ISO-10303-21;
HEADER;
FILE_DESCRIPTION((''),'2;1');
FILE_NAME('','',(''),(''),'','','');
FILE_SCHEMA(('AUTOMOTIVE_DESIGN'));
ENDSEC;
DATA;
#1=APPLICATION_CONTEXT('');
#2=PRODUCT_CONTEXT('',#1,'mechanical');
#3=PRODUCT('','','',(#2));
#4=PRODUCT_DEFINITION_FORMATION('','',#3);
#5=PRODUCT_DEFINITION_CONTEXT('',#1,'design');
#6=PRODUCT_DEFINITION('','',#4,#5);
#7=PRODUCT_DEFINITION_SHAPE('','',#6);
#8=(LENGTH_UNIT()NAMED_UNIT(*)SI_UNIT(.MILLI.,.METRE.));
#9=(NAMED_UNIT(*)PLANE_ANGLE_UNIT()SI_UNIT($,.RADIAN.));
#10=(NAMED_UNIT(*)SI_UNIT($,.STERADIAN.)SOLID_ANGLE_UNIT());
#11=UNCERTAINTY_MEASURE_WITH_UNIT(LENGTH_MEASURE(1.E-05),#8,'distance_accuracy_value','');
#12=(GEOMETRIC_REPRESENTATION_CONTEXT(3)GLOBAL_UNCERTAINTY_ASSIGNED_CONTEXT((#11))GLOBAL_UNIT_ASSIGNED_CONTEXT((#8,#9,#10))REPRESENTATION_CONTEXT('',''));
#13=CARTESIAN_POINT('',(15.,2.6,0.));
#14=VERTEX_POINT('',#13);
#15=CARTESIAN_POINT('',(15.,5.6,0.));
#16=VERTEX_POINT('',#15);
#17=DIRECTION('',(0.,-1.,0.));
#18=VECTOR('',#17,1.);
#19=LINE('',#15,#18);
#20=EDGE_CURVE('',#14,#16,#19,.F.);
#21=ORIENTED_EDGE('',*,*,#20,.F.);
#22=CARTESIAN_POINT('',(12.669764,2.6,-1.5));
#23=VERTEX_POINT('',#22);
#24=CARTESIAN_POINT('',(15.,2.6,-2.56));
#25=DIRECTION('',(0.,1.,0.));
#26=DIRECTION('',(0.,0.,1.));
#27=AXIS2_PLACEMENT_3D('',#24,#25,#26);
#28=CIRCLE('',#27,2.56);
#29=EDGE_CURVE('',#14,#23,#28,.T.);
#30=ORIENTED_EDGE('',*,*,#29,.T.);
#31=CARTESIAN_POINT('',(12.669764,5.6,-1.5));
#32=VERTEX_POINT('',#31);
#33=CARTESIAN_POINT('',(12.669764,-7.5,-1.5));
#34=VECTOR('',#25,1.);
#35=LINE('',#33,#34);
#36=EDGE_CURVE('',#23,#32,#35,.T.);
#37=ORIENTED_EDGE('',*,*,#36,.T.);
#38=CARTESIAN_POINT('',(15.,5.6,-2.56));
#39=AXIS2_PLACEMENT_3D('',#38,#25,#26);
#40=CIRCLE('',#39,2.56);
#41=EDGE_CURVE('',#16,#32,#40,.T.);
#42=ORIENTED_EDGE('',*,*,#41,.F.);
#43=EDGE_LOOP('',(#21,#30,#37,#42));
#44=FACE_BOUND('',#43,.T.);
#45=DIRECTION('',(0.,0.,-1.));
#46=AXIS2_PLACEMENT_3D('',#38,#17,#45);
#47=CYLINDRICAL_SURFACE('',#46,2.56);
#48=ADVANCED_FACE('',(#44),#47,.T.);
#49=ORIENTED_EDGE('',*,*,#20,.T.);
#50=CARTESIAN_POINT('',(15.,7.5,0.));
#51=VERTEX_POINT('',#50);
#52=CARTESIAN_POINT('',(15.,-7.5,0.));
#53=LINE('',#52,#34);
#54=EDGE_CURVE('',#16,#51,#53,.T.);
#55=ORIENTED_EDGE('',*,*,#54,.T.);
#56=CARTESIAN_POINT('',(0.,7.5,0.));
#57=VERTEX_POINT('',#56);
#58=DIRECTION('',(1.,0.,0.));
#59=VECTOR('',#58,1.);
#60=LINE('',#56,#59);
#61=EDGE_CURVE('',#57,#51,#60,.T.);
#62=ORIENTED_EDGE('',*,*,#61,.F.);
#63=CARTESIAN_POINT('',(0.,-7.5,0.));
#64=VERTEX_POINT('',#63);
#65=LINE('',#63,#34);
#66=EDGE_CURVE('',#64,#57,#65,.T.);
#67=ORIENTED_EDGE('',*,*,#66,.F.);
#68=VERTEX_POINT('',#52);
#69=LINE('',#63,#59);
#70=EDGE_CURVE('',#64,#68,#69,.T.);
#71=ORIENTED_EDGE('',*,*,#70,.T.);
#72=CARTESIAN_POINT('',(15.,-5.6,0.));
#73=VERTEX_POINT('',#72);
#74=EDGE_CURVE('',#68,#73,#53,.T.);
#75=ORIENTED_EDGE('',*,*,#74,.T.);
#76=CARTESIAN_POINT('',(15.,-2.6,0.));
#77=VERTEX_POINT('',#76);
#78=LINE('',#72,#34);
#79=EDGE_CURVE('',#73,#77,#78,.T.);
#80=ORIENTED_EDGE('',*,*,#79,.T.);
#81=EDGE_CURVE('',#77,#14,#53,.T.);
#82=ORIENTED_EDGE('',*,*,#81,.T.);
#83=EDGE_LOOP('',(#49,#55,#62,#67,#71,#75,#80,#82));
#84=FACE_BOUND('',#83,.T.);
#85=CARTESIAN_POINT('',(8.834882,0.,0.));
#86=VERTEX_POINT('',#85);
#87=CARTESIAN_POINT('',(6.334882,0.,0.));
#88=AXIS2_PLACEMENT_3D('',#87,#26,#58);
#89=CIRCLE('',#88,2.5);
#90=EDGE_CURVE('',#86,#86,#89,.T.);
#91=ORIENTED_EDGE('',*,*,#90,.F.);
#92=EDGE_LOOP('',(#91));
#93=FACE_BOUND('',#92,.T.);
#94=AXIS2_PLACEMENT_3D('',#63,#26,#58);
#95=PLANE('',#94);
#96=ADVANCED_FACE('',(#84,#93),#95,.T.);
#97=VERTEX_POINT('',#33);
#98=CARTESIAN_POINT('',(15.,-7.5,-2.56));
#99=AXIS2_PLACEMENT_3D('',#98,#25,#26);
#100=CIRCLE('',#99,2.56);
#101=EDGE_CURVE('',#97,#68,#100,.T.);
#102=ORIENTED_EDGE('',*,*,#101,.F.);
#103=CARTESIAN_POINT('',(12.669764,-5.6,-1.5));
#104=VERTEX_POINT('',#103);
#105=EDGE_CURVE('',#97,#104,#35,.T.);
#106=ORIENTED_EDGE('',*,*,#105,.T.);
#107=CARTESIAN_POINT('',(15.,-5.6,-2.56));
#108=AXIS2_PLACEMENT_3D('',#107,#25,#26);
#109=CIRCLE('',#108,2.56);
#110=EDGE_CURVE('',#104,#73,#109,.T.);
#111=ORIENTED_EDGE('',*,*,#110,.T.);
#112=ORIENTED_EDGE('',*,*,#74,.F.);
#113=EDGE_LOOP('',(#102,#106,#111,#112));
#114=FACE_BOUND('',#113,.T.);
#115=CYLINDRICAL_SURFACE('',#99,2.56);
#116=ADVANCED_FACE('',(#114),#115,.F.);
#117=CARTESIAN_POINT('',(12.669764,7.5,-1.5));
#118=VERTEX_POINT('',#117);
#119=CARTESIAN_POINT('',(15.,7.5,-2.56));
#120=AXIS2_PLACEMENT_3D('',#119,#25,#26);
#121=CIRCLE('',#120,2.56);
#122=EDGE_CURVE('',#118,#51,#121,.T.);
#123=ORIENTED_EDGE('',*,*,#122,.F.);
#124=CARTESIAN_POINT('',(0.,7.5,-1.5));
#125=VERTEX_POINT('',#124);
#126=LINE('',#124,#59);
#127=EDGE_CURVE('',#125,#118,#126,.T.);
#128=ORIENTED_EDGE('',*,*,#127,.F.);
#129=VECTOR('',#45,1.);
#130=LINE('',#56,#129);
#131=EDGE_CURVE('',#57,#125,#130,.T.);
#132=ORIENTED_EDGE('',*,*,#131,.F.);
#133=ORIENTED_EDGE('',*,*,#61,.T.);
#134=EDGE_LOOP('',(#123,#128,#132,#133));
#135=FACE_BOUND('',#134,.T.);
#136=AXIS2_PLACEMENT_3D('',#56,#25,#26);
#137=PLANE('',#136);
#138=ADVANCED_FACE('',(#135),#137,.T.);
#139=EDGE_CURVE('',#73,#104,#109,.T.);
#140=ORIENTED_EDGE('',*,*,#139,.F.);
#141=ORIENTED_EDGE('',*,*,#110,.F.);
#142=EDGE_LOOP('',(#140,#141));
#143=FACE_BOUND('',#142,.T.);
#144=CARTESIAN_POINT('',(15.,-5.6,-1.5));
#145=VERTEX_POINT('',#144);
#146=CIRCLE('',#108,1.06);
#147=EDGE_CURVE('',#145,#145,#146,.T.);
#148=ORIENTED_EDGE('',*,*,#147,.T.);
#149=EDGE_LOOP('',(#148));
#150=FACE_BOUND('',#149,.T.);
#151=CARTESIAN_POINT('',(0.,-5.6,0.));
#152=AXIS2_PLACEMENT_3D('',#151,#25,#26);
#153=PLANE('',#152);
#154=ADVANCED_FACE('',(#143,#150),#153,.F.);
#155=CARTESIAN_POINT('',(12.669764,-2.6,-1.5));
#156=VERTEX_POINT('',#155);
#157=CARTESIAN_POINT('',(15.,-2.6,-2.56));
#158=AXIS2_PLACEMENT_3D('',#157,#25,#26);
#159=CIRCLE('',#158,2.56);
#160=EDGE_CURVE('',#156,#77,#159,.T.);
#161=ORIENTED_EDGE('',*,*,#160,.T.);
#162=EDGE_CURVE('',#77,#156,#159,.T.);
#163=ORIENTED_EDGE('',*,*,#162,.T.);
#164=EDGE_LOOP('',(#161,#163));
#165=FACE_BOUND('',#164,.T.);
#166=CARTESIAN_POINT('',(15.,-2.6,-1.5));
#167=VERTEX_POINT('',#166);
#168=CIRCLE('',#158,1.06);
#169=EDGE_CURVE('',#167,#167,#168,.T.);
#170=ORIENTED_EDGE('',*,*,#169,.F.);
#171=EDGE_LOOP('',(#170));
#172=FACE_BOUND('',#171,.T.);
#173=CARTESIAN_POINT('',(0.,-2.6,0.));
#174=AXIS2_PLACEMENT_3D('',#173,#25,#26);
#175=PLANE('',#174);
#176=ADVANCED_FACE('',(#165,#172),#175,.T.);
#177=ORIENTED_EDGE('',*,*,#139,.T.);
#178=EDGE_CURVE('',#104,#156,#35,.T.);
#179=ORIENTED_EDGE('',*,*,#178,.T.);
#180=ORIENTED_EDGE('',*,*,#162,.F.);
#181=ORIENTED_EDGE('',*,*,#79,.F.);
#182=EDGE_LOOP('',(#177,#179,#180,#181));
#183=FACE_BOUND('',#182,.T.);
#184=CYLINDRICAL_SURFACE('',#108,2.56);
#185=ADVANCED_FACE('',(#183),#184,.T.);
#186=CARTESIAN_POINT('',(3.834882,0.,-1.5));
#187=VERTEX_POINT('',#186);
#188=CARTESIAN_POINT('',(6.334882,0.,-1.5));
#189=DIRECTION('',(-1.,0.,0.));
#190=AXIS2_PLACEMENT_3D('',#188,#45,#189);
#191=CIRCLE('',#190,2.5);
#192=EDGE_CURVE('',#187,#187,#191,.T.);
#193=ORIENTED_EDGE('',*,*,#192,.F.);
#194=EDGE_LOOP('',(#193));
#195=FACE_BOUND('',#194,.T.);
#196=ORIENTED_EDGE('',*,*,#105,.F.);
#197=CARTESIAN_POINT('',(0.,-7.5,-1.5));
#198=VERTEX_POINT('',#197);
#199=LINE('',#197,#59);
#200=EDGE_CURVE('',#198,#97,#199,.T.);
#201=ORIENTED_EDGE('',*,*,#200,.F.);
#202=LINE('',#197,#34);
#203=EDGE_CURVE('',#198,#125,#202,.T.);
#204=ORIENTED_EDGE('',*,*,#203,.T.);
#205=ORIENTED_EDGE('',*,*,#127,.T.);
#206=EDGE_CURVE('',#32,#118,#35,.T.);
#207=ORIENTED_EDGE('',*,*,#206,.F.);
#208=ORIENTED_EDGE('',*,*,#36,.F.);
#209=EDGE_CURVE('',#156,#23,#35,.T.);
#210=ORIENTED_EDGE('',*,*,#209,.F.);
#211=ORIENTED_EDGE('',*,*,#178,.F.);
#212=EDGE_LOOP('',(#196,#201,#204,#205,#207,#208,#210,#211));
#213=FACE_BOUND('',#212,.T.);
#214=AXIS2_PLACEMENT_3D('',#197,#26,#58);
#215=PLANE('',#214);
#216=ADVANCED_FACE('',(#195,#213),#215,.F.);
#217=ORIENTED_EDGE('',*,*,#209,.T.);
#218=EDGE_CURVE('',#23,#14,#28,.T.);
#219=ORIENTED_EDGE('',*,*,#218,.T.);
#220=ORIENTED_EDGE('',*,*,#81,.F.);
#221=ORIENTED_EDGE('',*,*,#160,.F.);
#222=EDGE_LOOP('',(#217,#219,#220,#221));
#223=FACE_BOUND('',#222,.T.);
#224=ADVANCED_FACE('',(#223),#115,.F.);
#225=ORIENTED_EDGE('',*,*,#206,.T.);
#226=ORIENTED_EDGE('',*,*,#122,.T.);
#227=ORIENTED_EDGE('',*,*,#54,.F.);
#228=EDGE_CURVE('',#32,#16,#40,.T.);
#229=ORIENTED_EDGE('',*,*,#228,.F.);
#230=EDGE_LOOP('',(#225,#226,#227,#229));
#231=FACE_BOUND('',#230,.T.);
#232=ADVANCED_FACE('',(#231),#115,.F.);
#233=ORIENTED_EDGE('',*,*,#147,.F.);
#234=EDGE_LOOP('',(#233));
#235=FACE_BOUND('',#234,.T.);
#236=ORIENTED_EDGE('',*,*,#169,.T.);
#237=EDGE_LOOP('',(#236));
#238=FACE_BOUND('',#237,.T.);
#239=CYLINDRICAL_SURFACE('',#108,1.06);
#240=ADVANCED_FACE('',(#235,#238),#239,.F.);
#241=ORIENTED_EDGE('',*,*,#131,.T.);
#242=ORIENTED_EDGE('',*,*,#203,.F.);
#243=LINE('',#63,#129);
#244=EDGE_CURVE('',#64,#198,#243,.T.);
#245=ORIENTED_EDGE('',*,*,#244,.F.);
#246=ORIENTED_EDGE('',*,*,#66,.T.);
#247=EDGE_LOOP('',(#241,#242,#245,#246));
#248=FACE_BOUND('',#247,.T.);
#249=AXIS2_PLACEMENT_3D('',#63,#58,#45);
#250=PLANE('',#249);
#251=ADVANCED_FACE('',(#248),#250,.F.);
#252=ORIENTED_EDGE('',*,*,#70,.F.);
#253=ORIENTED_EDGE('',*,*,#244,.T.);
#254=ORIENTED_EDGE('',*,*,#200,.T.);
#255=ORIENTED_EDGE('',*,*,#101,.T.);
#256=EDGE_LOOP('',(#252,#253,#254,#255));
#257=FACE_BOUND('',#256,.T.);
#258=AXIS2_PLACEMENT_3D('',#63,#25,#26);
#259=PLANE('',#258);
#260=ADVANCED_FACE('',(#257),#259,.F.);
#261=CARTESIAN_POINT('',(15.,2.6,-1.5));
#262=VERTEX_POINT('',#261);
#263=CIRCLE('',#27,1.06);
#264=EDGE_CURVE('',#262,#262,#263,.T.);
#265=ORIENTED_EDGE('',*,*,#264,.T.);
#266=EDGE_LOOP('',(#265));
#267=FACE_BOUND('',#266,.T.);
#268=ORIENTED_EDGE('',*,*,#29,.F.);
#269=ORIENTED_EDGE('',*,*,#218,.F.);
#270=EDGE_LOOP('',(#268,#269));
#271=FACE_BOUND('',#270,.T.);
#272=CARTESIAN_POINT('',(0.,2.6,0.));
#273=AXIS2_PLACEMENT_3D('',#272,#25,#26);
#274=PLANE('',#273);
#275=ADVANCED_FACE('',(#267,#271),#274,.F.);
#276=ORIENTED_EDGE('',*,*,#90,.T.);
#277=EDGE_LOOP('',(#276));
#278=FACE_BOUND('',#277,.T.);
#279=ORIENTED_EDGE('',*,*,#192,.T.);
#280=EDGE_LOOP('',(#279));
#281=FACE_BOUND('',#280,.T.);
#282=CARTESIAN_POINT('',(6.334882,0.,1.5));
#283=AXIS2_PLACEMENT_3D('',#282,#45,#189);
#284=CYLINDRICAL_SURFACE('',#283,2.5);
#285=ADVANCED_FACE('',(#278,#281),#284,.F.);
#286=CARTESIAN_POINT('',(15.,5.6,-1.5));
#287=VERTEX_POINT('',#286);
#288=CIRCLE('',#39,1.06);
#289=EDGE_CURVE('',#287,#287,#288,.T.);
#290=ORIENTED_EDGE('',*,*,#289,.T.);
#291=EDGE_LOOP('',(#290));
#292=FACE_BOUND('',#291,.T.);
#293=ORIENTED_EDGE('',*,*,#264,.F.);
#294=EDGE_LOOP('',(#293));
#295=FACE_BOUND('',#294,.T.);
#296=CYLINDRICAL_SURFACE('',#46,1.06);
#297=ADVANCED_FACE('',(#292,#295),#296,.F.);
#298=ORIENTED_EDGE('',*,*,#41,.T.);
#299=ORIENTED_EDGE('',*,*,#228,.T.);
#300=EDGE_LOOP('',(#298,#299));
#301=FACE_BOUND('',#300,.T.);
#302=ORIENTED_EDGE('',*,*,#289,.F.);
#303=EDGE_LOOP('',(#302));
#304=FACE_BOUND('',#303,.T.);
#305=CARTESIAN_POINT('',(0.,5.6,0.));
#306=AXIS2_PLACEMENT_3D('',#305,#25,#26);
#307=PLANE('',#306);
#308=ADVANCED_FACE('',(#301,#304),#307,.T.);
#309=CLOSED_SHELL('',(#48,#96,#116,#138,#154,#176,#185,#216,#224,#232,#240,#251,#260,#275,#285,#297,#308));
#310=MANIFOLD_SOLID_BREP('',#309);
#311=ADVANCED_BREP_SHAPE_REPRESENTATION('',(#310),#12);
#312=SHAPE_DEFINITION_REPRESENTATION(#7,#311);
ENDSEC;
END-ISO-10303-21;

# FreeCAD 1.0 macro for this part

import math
import FreeCAD as App
import Part
import Sketcher

V = App.Vector

doc = App.newDocument("Part")
body = doc.addObject("PartDesign::Body", "Body")

# Sketch on XZ plane
sketch1 = doc.addObject("Sketcher::SketchObject", "Sketch")
body.addObject(sketch1)
sketch1.AttachmentSupport = (doc.XZ_Plane, [""])
sketch1.MapMode = "FlatFace"
sketch1.addGeometry(Part.LineSegment(V(0, -1.5, 0), V(0, 0, 0)), False)
sketch1.addGeometry(Part.LineSegment(V(0, 0, 0), V(15, 0, 0)), False)
sketch1.addGeometry(Part.ArcOfCircle(Part.Circle(V(15, -2.6, 0), V(0, 0, 1), 2.6), math.radians(90), math.radians(156)), False)
sketch1.addGeometry(Part.LineSegment(V(12.7, -1.5, 0), V(0, -1.5, 0)), False)
sketch1.addConstraint(Sketcher.Constraint("Coincident", 0, 2, 1, 1))
sketch1.addConstraint(Sketcher.Constraint("Tangent", 1, 2, 2, 1))
sketch1.addConstraint(Sketcher.Constraint("Coincident", 2, 2, 3, 1))
sketch1.addConstraint(Sketcher.Constraint("Coincident", 3, 2, 0, 1))
sketch1.addConstraint(Sketcher.Constraint("Vertical", 0))
sketch1.addConstraint(Sketcher.Constraint("Horizontal", 1))
sketch1.addConstraint(Sketcher.Constraint("Horizontal", 3))
sketch1.addConstraint(Sketcher.Constraint("Coincident", 0, 2, -1, 1))
sketch1.addConstraint(Sketcher.Constraint("DistanceX", 1, 1, 1, 2, 15.0))
sketch1.addConstraint(Sketcher.Constraint("Radius", 2, 2.56))
sketch1.addConstraint(Sketcher.Constraint("DistanceY", 0, 1, 0, 2, 1.5))
pad1 = doc.addObject("PartDesign::Pad", "Pad")
body.addObject(pad1)
pad1.Profile = sketch1
pad1.Type = "TwoLengths"
pad1.Length = 7.5
pad1.Length2 = 7.5
pad1.Reversed = True

# Sketch on XZ plane
sketch2 = doc.addObject("Sketcher::SketchObject", "Sketch001")
body.addObject(sketch2)
sketch2.AttachmentSupport = (doc.XZ_Plane, [""])
sketch2.MapMode = "FlatFace"
sketch2.AttachmentOffset = App.Placement(V(0, 0, -2.6), App.Rotation())
sketch2.addGeometry(Part.Circle(V(15, -2.6, 0), V(0, 0, 1), 2.6), False)
sketch2.addGeometry(Part.Circle(V(15, -2.6, 0), V(0, 0, 1), 1.1), False)
sketch2.addConstraint(Sketcher.Constraint("Coincident", 1, 3, 0, 3))
sketch2.addConstraint(Sketcher.Constraint("Diameter", 0, 5.12))
sketch2.addConstraint(Sketcher.Constraint("Diameter", 1, 2.12))
sketch2.addConstraint(Sketcher.Constraint("DistanceX", -1, 1, 0, 3, 15.0))
sketch2.addConstraint(Sketcher.Constraint("DistanceY", 0, 3, -1, 1, 2.56))
pad2 = doc.addObject("PartDesign::Pad", "Pad001")
body.addObject(pad2)
pad2.Profile = sketch2
pad2.Length = 3
pad2.Reversed = True

# Sketch on XZ plane
sketch3 = doc.addObject("Sketcher::SketchObject", "Sketch002")
body.addObject(sketch3)
sketch3.AttachmentSupport = (doc.XZ_Plane, [""])
sketch3.MapMode = "FlatFace"
sketch3.AttachmentOffset = App.Placement(V(0, 0, 5.6), App.Rotation())
sketch3.addGeometry(Part.Circle(V(15, -2.6, 0), V(0, 0, 1), 2.6), False)
sketch3.addGeometry(Part.Circle(V(15, -2.6, 0), V(0, 0, 1), 1.1), False)
sketch3.addConstraint(Sketcher.Constraint("Coincident", 1, 3, 0, 3))
sketch3.addConstraint(Sketcher.Constraint("Diameter", 0, 5.12))
sketch3.addConstraint(Sketcher.Constraint("Diameter", 1, 2.12))
sketch3.addConstraint(Sketcher.Constraint("DistanceX", -1, 1, 0, 3, 15.0))
sketch3.addConstraint(Sketcher.Constraint("DistanceY", 0, 3, -1, 1, 2.56))
pad3 = doc.addObject("PartDesign::Pad", "Pad002")
body.addObject(pad3)
pad3.Profile = sketch3
pad3.Length = 3
pad3.Reversed = True

# Sketch on XY plane
sketch4 = doc.addObject("Sketcher::SketchObject", "Sketch003")
body.addObject(sketch4)
sketch4.AttachmentSupport = (doc.XY_Plane, [""])
sketch4.MapMode = "FlatFace"
sketch4.AttachmentOffset = App.Placement(V(0, 0, -1.5), App.Rotation())
sketch4.addGeometry(Part.Circle(V(6.3, 0, 0), V(0, 0, 1), 2.5), False)
sketch4.addConstraint(Sketcher.Constraint("PointOnObject", 0, 3, -1))
sketch4.addConstraint(Sketcher.Constraint("Diameter", 0, 5.0))
sketch4.addConstraint(Sketcher.Constraint("DistanceX", -1, 1, 0, 3, 6.334882))
pocket1 = doc.addObject("PartDesign::Pocket", "Pocket")
body.addObject(pocket1)
pocket1.Profile = sketch4
pocket1.Length = 3
pocket1.Reversed = True

doc.recompute()
